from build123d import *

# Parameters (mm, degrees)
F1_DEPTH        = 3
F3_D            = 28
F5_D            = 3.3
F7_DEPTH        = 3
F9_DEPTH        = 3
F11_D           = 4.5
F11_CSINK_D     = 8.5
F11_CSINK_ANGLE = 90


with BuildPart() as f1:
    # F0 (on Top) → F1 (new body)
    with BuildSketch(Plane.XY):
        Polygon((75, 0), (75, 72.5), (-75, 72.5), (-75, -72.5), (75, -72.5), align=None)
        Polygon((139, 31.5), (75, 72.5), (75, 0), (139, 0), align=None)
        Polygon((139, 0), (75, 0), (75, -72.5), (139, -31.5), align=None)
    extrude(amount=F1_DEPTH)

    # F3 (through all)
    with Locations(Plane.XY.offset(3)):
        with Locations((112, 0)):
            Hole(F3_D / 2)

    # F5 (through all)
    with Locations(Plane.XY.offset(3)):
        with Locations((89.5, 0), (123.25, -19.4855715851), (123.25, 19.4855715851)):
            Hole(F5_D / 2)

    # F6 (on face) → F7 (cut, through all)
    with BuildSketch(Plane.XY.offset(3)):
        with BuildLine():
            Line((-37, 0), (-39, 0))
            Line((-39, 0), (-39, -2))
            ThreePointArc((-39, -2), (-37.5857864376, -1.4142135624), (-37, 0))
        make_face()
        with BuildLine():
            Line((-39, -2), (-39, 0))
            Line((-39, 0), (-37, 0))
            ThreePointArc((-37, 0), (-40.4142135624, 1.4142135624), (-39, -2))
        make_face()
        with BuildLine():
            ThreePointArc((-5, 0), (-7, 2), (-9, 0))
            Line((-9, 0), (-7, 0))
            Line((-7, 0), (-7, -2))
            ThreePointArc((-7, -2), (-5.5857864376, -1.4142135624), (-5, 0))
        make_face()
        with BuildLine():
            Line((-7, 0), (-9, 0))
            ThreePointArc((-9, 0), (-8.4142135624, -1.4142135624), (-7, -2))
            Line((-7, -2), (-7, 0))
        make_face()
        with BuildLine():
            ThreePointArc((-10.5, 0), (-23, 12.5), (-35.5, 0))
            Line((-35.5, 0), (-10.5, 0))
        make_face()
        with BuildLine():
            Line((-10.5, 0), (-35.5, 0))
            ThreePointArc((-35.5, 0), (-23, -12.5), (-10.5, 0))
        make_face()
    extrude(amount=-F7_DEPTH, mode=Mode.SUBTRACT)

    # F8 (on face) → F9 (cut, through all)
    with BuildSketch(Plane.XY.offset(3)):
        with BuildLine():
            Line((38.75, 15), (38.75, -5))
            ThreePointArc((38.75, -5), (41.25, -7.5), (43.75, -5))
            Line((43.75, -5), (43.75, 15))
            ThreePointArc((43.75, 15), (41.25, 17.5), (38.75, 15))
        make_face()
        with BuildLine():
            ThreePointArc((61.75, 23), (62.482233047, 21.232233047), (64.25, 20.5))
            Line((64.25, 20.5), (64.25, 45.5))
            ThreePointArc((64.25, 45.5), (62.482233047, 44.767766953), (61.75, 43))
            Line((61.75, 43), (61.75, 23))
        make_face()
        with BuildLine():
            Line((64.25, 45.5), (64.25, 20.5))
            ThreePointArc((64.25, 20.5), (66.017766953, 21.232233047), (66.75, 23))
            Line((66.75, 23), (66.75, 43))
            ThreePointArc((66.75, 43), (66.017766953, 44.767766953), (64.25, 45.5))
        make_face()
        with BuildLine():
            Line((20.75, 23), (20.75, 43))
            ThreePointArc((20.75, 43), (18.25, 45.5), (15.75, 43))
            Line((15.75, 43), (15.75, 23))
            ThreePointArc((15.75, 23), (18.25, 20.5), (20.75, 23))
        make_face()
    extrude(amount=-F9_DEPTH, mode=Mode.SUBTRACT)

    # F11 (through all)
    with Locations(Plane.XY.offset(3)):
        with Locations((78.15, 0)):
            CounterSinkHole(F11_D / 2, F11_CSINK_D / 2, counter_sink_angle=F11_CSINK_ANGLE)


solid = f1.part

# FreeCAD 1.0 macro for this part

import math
import FreeCAD as App
import Part
import Sketcher

V = App.Vector
Q = App.Units.Quantity

doc = App.newDocument("Part")
params = doc.addObject("Spreadsheet::Sheet", "Params")
for row, (alias, value) in enumerate([
    ("sketch1_width", "150 mm"),
    ("sketch1_height", "145 mm"),
    ("sketch1_height2", "63 mm"),
    ("pad1_length", "3 mm"),
    ("sketch2_diameter", "28 mm"),
    ("hole_diameter", "28 mm"),
    ("sketch3_diameter", "3.3 mm"),
    ("hole2_diameter", "3.3 mm"),
    ("sketch4_diameter", "25 mm"),
    ("sketch4_radius", "2 mm"),
    ("sketch5_radius", "2.5 mm"),
    ("sketch5_height", "20 mm"),
    ("sketch6_diameter", "4.5 mm"),
    ("hole3_diameter", "4.5 mm"),
    ("hole3_csink_diameter", "8.5 mm"),
], start=1):
    params.set(f"A{row}", alias)
    params.set(f"B{row}", "=" + value)
    params.setAlias(f"B{row}", alias)

body = doc.addObject("PartDesign::Body", "Body")

# Sketch on XY plane
sketch1 = doc.addObject("Sketcher::SketchObject", "Sketch")
body.addObject(sketch1)
sketch1.AttachmentSupport = (doc.XY_Plane, [""])
sketch1.MapMode = "FlatFace"
sketch1.addGeometry([
    Part.LineSegment(V(75, 72, 0), V(-75, 72, 0)),  # 0
    Part.LineSegment(V(-75, 72, 0), V(-75, -72, 0)),  # 1
    Part.LineSegment(V(-75, -72, 0), V(75, -72, 0)),  # 2
    Part.LineSegment(V(75, -72, 0), V(139, -32, 0)),  # 3
    Part.LineSegment(V(139, -32, 0), V(139, 32, 0)),  # 4
    Part.LineSegment(V(139, 32, 0), V(75, 72, 0)),  # 5
], False)
sketch1.addConstraint([
    Sketcher.Constraint("Coincident", 0, 2, 1, 1),
    Sketcher.Constraint("Coincident", 1, 2, 2, 1),
    Sketcher.Constraint("Coincident", 2, 2, 3, 1),
    Sketcher.Constraint("Coincident", 3, 2, 4, 1),
    Sketcher.Constraint("Coincident", 4, 2, 5, 1),
    Sketcher.Constraint("Coincident", 5, 2, 0, 1),
    Sketcher.Constraint("Horizontal", 0),
    Sketcher.Constraint("Vertical", 1),
    Sketcher.Constraint("Horizontal", 2),
    Sketcher.Constraint("Vertical", 4),
    Sketcher.Constraint("Symmetric", 0, 2, 2, 2, -1, 1),
    Sketcher.Constraint("Vertical", 2, 2, 5, 2),
    Sketcher.Constraint("Equal", 3, 5),
    Sketcher.Constraint("DistanceX", 0, 2, 0, 1, Q("150 mm")),
    Sketcher.Constraint("DistanceY", 1, 2, 1, 1, Q("145 mm")),
    Sketcher.Constraint("DistanceY", 4, 1, 4, 2, Q("63 mm")),
    Sketcher.Constraint("DistanceX", -1, 1, 3, 2, Q("139 mm")),
])
sketch1.setExpression("Constraints[13]", "Params.sketch1_width")
sketch1.setExpression("Constraints[14]", "Params.sketch1_height")
sketch1.setExpression("Constraints[15]", "Params.sketch1_height2")
pad1 = doc.addObject("PartDesign::Pad", "Pad")
body.addObject(pad1)
pad1.Profile = sketch1
pad1.setExpression("Length", "Params.pad1_length")

# Sketch on XY plane
sketch2 = doc.addObject("Sketcher::SketchObject", "Sketch001")
body.addObject(sketch2)
sketch2.AttachmentSupport = (doc.XY_Plane, [""])
sketch2.MapMode = "FlatFace"
sketch2.AttachmentOffset = App.Placement(V(0, 0, 3), App.Rotation())
sketch2.addGeometry(Part.Circle(V(112, 0, 0), V(0, 0, 1), 14), False)
sketch2.addConstraint([
    Sketcher.Constraint("PointOnObject", 0, 3, -1),
    Sketcher.Constraint("Diameter", 0, Q("28 mm")),
    Sketcher.Constraint("DistanceX", -1, 1, 0, 3, Q("112 mm")),
])
sketch2.setExpression("Constraints[1]", "Params.sketch2_diameter")
doc.recompute()
hole = doc.addObject("PartDesign::Hole", "Hole")
body.addObject(hole)
hole.Profile = sketch2
hole.ThreadType = "None"
hole.setExpression("Diameter", "Params.hole_diameter")
hole.DepthType = "ThroughAll"

# Sketch on XY plane
sketch3 = doc.addObject("Sketcher::SketchObject", "Sketch002")
body.addObject(sketch3)
sketch3.AttachmentSupport = (doc.XY_Plane, [""])
sketch3.MapMode = "FlatFace"
sketch3.AttachmentOffset = App.Placement(V(0, 0, 3), App.Rotation())
sketch3.addGeometry([
    Part.Circle(V(89.5, 0, 0), V(0, 0, 1), 1.6),
    Part.Circle(V(123.2, -19.5, 0), V(0, 0, 1), 1.6),
    Part.Circle(V(123.2, 19.5, 0), V(0, 0, 1), 1.6),
], False)
sketch3.addConstraint([
    Sketcher.Constraint("Equal", 0, 1),
    Sketcher.Constraint("Equal", 1, 2),
    Sketcher.Constraint("Symmetric", 1, 3, 2, 3, -1),
    Sketcher.Constraint("PointOnObject", 0, 3, -1),
    Sketcher.Constraint("Diameter", 0, Q("3.3 mm")),
    Sketcher.Constraint("DistanceX", -1, 1, 0, 3, Q("89.5 mm")),
    Sketcher.Constraint("DistanceX", -1, 1, 1, 3, Q("123.25 mm")),
    Sketcher.Constraint("DistanceY", 1, 3, -1, 1, Q("19.485572 mm")),
])
sketch3.setExpression("Constraints[4]", "Params.sketch3_diameter")
doc.recompute()
hole2 = doc.addObject("PartDesign::Hole", "Hole001")
body.addObject(hole2)
hole2.Profile = sketch3
hole2.ThreadType = "None"
hole2.setExpression("Diameter", "Params.hole2_diameter")
hole2.DepthType = "ThroughAll"

# Sketch on XY plane
sketch4 = doc.addObject("Sketcher::SketchObject", "Sketch003")
body.addObject(sketch4)
sketch4.AttachmentSupport = (doc.XY_Plane, [""])
sketch4.MapMode = "FlatFace"
sketch4.AttachmentOffset = App.Placement(V(0, 0, 3), App.Rotation())
sketch4.addGeometry([
    Part.ArcOfCircle(Part.Circle(V(-39, 0, 0), V(0, 0, 1), 2), math.radians(-90), math.radians(0)),  # 0
    Part.ArcOfCircle(Part.Circle(V(-39, 0, 0), V(0, 0, 1), 2), math.radians(0), math.radians(270)),  # 1
    Part.ArcOfCircle(Part.Circle(V(-7, 0, 0), V(0, 0, 1), 2), math.radians(0), math.radians(180)),  # 2
    Part.ArcOfCircle(Part.Circle(V(-7, 0, 0), V(0, 0, 1), 2), math.radians(180), math.radians(270)),  # 3
    Part.ArcOfCircle(Part.Circle(V(-7, 0, 0), V(0, 0, 1), 2), math.radians(-90), math.radians(0)),  # 4
    Part.Circle(V(-23, 0, 0), V(0, 0, 1), 12.5),  # 5
], False)
sketch4.addConstraint([
    Sketcher.Constraint("Tangent", 0, 1, 1, 2),
    Sketcher.Constraint("Coincident", 1, 1, 0, 2),
    Sketcher.Constraint("Tangent", 2, 2, 3, 1),
    Sketcher.Constraint("Tangent", 3, 2, 4, 1),
    Sketcher.Constraint("Tangent", 4, 2, 2, 1),
    Sketcher.Constraint("Equal", 1, 2),
    Sketcher.Constraint("PointOnObject", 0, 3, -1),
    Sketcher.Constraint("PointOnObject", 2, 3, -1),
    Sketcher.Constraint("PointOnObject", 5, 3, -1),
    Sketcher.Constraint("PointOnObject", 1, 1, -1),
    Sketcher.Constraint("PointOnObject", 2, 2, -1),
    Sketcher.Constraint("PointOnObject", 4, 2, -1),
    Sketcher.Constraint("Vertical", 1, 3, 0, 1),
    Sketcher.Constraint("Vertical", 4, 3, 3, 2),
    Sketcher.Constraint("Diameter", 5, Q("25 mm")),
    Sketcher.Constraint("Radius", 0, Q("2 mm")),
    Sketcher.Constraint("DistanceX", 0, 3, -1, 1, Q("39 mm")),
    Sketcher.Constraint("DistanceX", 2, 3, -1, 1, Q("7 mm")),
    Sketcher.Constraint("DistanceX", 5, 3, -1, 1, Q("23 mm")),
])
sketch4.setExpression("Constraints[14]", "Params.sketch4_diameter")
sketch4.setExpression("Constraints[15]", "Params.sketch4_radius")
pocket1 = doc.addObject("PartDesign::Pocket", "Pocket")
body.addObject(pocket1)
pocket1.Profile = sketch4
pocket1.Type = "ThroughAll"

# Sketch on XY plane
sketch5 = doc.addObject("Sketcher::SketchObject", "Sketch004")
body.addObject(sketch5)
sketch5.AttachmentSupport = (doc.XY_Plane, [""])
sketch5.MapMode = "FlatFace"
sketch5.AttachmentOffset = App.Placement(V(0, 0, 3), App.Rotation())
sketch5.addGeometry([
    Part.LineSegment(V(38.8, 15, 0), V(38.8, -5, 0)),  # 0
    Part.ArcOfCircle(Part.Circle(V(41.2, -5, 0), V(0, 0, 1), 2.5), math.radians(180), math.radians(360)),  # 1
    Part.LineSegment(V(43.8, -5, 0), V(43.8, 15, 0)),  # 2
    Part.ArcOfCircle(Part.Circle(V(41.2, 15, 0), V(0, 0, 1), 2.5), math.radians(0), math.radians(180)),  # 3
    Part.ArcOfCircle(Part.Circle(V(64.2, 23, 0), V(0, 0, 1), 2.5), math.radians(180), math.radians(270)),  # 4
    Part.ArcOfCircle(Part.Circle(V(64.2, 23, 0), V(0, 0, 1), 2.5), math.radians(-90), math.radians(0)),  # 5
    Part.LineSegment(V(66.8, 23, 0), V(66.8, 43, 0)),  # 6
    Part.ArcOfCircle(Part.Circle(V(64.2, 43, 0), V(0, 0, 1), 2.5), math.radians(0), math.radians(90)),  # 7
    Part.ArcOfCircle(Part.Circle(V(64.2, 43, 0), V(0, 0, 1), 2.5), math.radians(90), math.radians(180)),  # 8
    Part.LineSegment(V(61.8, 43, 0), V(61.8, 23, 0)),  # 9
    Part.LineSegment(V(20.8, 23, 0), V(20.8, 43, 0)),  # 10
    Part.ArcOfCircle(Part.Circle(V(18.2, 43, 0), V(0, 0, 1), 2.5), math.radians(0), math.radians(180)),  # 11
    Part.LineSegment(V(15.8, 43, 0), V(15.8, 23, 0)),  # 12
    Part.ArcOfCircle(Part.Circle(V(18.2, 23, 0), V(0, 0, 1), 2.5), math.radians(180), math.radians(360)),  # 13
], False)
sketch5.addConstraint([
    Sketcher.Constraint("Tangent", 0, 2, 1, 1),
    Sketcher.Constraint("Tangent", 1, 2, 2, 1),
    Sketcher.Constraint("Tangent", 2, 2, 3, 1),
    Sketcher.Constraint("Tangent", 3, 2, 0, 1),
    Sketcher.Constraint("Tangent", 4, 2, 5, 1),
    Sketcher.Constraint("Tangent", 5, 2, 6, 1),
    Sketcher.Constraint("Tangent", 6, 2, 7, 1),
    Sketcher.Constraint("Tangent", 7, 2, 8, 1),
    Sketcher.Constraint("Tangent", 8, 2, 9, 1),
    Sketcher.Constraint("Tangent", 9, 2, 4, 1),
    Sketcher.Constraint("Tangent", 10, 2, 11, 1),
    Sketcher.Constraint("Tangent", 11, 2, 12, 1),
    Sketcher.Constraint("Tangent", 12, 2, 13, 1),
    Sketcher.Constraint("Tangent", 13, 2, 10, 1),
    Sketcher.Constraint("Vertical", 0),
    Sketcher.Constraint("Vertical", 2),
    Sketcher.Constraint("Vertical", 6),
    Sketcher.Constraint("Vertical", 9),
    Sketcher.Constraint("Vertical", 10),
    Sketcher.Constraint("Vertical", 12),
    Sketcher.Constraint("Equal", 3, 4),
    Sketcher.Constraint("Equal", 4, 5),
    Sketcher.Constraint("Equal", 5, 7),
    Sketcher.Constraint("Equal", 8, 11),
    Sketcher.Constraint("Horizontal", 8, 3, 11, 3),
    Sketcher.Constraint("Horizontal", 5, 3, 13, 3),
    Sketcher.Constraint("Vertical", 8, 3, 4, 2),
    Sketcher.Constraint("Vertical", 4, 2, 7, 2),
    Sketcher.Constraint("Equal", 2, 6),
    Sketcher.Constraint("Radius", 1, Q("2.5 mm")),
    Sketcher.Constraint("DistanceY", 0, 2, 0, 1, Q("20 mm")),
    Sketcher.Constraint("DistanceY", 1, 3, -1, 1, Q("5 mm")),
    Sketcher.Constraint("DistanceY", -1, 1, 4, 3, Q("23 mm")),
    Sketcher.Constraint("DistanceX", 3, 3, 4, 3, Q("23 mm")),
    Sketcher.Constraint("DistanceX", 11, 3, 3, 3, Q("23 mm")),
    Sketcher.Constraint("DistanceX", -1, 1, 1, 3, Q("41.25 mm")),
])
sketch5.setExpression("Constraints[29]", "Params.sketch5_radius")
sketch5.setExpression("Constraints[30]", "Params.sketch5_height")
pocket2 = doc.addObject("PartDesign::Pocket", "Pocket001")
body.addObject(pocket2)
pocket2.Profile = sketch5
pocket2.Type = "ThroughAll"

# Sketch on XY plane
sketch6 = doc.addObject("Sketcher::SketchObject", "Sketch005")
body.addObject(sketch6)
sketch6.AttachmentSupport = (doc.XY_Plane, [""])
sketch6.MapMode = "FlatFace"
sketch6.AttachmentOffset = App.Placement(V(0, 0, 3), App.Rotation())
sketch6.addGeometry(Part.Circle(V(78.2, 0, 0), V(0, 0, 1), 2.2), False)
sketch6.addConstraint([
    Sketcher.Constraint("PointOnObject", 0, 3, -1),
    Sketcher.Constraint("Diameter", 0, Q("4.5 mm")),
    Sketcher.Constraint("DistanceX", -1, 1, 0, 3, Q("78.15 mm")),
])
sketch6.setExpression("Constraints[1]", "Params.sketch6_diameter")
doc.recompute()
hole3 = doc.addObject("PartDesign::Hole", "Hole002")
body.addObject(hole3)
hole3.Profile = sketch6
hole3.ThreadType = "None"
hole3.setExpression("Diameter", "Params.hole3_diameter")
hole3.DepthType = "ThroughAll"
hole3.HoleCutType = "Countersink"
hole3.setExpression("HoleCutDiameter", "Params.hole3_csink_diameter")
hole3.HoleCutCountersinkAngle = 90

doc.recompute()
